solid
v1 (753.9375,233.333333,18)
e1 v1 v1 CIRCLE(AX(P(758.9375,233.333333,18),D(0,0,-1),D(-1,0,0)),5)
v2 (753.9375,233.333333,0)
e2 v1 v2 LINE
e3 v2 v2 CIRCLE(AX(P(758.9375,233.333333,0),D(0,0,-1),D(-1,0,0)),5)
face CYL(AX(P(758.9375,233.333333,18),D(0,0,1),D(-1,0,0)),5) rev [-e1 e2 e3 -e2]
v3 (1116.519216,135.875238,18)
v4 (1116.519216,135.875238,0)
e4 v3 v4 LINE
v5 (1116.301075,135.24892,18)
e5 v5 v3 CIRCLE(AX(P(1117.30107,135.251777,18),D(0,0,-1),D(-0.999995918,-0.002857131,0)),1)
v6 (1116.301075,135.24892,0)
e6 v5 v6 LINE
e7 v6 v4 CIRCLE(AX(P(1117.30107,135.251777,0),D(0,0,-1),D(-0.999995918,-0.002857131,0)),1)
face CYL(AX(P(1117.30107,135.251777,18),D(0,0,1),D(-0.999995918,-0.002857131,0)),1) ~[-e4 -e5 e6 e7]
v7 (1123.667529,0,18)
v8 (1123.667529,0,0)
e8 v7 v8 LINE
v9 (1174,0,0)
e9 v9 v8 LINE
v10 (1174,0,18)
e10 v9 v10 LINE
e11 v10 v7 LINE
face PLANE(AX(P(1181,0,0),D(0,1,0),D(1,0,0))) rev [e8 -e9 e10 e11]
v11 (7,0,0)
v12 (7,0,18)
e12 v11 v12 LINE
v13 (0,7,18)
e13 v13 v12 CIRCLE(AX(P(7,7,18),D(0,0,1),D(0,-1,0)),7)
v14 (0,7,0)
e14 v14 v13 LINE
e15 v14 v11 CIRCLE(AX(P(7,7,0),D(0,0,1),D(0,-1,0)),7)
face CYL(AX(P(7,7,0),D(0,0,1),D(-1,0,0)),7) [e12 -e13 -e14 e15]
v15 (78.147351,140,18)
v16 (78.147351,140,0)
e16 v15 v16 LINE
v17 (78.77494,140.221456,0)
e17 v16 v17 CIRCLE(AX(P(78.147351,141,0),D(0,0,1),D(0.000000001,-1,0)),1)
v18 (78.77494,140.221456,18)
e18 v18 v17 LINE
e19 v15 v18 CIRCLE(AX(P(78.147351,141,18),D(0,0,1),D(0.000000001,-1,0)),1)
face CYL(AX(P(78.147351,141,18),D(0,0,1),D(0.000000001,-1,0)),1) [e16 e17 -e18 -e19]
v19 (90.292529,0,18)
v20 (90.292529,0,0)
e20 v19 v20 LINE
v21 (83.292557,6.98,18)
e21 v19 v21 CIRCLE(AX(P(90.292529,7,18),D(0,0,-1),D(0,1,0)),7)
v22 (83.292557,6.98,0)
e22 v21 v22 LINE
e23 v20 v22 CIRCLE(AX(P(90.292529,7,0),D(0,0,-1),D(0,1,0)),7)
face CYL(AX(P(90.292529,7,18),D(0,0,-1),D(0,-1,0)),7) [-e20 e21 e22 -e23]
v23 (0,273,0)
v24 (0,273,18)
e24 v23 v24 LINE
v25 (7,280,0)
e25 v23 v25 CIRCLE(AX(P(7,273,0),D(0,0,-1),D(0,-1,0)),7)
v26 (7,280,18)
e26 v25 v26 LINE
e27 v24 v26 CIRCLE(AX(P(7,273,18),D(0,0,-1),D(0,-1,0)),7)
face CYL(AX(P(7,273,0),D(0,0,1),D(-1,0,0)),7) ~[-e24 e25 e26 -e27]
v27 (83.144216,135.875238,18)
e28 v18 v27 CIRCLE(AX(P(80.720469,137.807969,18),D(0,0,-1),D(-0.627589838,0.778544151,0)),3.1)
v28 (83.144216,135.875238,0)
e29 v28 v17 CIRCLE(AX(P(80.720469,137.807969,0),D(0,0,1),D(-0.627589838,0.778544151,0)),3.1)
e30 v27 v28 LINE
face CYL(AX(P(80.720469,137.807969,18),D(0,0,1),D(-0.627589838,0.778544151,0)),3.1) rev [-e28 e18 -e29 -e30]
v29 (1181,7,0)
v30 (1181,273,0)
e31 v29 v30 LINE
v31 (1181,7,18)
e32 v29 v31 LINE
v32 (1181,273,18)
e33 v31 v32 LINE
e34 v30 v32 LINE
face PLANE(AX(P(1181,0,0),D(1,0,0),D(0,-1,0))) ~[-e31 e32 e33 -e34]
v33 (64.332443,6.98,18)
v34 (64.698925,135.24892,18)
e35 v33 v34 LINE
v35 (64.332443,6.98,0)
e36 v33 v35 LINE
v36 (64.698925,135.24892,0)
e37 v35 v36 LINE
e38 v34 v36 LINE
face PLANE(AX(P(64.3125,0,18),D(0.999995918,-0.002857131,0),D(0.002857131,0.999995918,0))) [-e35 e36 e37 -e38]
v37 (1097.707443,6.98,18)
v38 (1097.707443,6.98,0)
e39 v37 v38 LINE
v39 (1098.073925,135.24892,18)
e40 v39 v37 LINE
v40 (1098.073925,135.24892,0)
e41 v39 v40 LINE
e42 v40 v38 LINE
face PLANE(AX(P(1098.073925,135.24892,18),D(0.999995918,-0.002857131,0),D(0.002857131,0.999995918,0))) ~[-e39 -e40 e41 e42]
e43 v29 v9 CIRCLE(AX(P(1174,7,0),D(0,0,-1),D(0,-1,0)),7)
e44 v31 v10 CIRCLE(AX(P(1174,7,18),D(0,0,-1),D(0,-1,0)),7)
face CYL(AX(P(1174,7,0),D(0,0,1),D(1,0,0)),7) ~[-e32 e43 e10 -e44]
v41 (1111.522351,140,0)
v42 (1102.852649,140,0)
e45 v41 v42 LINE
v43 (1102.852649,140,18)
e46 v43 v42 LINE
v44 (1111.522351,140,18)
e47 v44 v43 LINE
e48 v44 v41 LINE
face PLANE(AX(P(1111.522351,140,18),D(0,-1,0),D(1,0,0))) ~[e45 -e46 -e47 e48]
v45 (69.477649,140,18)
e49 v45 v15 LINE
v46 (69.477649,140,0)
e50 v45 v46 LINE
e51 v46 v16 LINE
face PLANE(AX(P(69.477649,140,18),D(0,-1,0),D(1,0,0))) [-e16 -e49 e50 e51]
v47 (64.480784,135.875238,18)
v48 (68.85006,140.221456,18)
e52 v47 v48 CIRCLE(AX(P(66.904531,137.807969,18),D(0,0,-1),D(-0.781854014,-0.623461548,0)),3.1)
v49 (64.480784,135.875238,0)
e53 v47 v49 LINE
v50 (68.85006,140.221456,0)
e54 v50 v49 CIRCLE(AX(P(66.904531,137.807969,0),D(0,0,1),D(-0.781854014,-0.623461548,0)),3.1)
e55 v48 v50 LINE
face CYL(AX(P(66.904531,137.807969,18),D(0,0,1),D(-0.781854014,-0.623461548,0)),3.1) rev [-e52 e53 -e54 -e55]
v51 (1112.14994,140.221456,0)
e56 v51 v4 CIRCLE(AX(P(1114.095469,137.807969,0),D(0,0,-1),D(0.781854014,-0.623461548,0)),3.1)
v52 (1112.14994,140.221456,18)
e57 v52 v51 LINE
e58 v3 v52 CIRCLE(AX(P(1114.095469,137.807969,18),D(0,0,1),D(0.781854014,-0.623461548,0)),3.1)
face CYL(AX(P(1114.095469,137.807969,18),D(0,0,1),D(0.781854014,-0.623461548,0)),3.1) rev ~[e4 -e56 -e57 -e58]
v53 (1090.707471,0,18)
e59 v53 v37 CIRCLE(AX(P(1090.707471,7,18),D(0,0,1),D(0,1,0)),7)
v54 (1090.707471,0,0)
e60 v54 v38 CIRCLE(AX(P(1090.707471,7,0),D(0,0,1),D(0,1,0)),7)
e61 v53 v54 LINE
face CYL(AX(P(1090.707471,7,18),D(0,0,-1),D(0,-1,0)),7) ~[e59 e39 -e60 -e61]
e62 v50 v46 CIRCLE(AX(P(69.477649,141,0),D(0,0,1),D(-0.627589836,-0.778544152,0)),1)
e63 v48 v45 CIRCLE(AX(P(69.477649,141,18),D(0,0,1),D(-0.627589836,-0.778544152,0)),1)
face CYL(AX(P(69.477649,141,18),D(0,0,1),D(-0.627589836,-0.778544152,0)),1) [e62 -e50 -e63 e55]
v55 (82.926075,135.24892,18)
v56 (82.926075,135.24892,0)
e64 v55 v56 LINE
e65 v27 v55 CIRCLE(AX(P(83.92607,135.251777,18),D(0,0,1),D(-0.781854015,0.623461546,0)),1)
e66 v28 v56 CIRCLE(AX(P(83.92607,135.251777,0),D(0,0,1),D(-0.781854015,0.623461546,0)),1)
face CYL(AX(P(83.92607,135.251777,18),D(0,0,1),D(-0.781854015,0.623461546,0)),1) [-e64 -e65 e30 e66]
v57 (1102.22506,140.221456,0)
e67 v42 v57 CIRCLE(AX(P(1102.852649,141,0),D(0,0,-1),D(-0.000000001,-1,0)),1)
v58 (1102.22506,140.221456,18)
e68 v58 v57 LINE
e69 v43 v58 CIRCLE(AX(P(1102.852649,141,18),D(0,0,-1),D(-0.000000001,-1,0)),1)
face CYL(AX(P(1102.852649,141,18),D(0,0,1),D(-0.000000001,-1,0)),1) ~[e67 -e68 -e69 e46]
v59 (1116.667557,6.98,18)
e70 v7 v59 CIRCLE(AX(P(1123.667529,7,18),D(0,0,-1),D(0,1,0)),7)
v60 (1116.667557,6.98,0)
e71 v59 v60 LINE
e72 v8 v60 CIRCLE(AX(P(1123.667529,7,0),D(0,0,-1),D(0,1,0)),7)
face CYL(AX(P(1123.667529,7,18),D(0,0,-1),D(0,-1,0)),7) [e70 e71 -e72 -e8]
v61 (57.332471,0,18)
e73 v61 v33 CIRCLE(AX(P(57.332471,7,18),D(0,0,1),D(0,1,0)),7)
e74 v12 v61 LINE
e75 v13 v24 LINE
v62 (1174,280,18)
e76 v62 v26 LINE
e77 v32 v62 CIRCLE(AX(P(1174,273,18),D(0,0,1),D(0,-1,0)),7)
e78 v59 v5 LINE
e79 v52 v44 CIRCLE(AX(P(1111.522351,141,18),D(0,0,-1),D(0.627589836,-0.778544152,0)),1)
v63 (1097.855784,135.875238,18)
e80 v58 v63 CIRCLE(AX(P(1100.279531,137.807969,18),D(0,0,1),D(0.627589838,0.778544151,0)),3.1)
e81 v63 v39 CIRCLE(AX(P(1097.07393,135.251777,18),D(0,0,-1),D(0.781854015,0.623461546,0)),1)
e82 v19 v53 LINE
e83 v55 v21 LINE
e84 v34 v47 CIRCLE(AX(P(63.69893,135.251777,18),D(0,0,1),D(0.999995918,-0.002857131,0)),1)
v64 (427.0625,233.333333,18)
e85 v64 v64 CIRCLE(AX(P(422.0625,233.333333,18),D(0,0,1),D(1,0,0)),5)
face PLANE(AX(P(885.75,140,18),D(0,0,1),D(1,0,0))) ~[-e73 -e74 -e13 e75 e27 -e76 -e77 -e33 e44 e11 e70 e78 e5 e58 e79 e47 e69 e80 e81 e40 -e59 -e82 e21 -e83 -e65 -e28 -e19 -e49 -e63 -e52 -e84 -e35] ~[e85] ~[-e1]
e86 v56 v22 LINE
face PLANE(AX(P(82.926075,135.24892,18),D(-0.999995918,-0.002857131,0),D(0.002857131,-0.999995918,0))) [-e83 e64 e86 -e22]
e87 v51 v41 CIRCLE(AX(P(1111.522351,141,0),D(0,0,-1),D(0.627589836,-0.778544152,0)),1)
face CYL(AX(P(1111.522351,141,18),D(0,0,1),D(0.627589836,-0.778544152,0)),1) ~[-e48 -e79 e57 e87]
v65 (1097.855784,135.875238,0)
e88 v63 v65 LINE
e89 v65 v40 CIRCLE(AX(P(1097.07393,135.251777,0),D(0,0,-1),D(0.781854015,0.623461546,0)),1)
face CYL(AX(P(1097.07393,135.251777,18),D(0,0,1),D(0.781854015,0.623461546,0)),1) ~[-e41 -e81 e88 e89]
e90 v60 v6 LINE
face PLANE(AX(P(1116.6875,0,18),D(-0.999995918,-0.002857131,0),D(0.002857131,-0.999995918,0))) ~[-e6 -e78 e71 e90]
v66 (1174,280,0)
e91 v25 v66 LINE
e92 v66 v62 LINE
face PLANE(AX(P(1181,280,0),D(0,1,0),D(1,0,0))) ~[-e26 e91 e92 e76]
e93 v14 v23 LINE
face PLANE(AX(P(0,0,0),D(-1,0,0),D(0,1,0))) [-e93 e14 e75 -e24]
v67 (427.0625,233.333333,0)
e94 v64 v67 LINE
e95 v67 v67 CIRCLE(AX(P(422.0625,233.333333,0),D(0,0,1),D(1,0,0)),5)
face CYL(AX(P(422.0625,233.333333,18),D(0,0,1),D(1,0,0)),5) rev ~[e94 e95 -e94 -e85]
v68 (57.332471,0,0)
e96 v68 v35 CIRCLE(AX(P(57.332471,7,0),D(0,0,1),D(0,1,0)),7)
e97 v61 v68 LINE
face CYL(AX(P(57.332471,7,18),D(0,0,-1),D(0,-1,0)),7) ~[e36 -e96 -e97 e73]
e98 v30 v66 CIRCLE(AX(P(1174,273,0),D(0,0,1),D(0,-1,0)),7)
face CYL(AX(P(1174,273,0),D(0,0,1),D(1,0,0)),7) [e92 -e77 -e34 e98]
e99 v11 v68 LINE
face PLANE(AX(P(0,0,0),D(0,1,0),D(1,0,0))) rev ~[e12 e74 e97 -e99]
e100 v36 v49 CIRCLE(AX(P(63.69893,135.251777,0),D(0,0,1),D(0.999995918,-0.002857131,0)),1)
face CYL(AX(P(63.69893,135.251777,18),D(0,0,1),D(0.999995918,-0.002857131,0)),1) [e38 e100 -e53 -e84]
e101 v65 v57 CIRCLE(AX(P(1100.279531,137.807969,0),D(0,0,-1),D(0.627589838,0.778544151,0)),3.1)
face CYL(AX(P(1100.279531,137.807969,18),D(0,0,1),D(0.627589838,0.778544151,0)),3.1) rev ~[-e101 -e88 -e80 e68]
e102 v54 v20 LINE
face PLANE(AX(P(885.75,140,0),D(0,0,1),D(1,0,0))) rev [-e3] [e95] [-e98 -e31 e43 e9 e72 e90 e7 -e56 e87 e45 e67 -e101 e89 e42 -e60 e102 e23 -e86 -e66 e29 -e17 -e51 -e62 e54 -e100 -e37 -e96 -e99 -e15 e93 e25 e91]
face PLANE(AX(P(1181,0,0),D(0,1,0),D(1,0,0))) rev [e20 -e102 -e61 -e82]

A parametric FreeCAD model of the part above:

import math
import FreeCAD as App
import Part
import Sketcher
from FreeCAD import Vector


def edges_at(feature, points):
    """Names of the edges that pass closest to the given points."""
    edges = feature.Shape.Edges
    near = lambda p: min(range(len(edges)), key=lambda i: edges[i].distToShape(Part.Vertex(*p))[0])
    return sorted({f"Edge{near(p) + 1}" for p in points})

doc = App.newDocument("Part")
body = doc.addObject("PartDesign::Body", "Body")

# Sketch on XY plane
sketch1 = body.newObject("Sketcher::SketchObject", "Sketch")
sketch1.AttachmentSupport = (doc.getObject("XY_Plane"), [""])
sketch1.MapMode = "FlatFace"
sketch1.addGeometry(Part.LineSegment(Vector(0, 280, 0), Vector(0, 0, 0)), False)
sketch1.addGeometry(Part.LineSegment(Vector(0, 0, 0), Vector(590, 0, 0)), False)
sketch1.addGeometry(Part.LineSegment(Vector(590, 0, 0), Vector(590, 280, 0)), False)
sketch1.addGeometry(Part.LineSegment(Vector(590, 280, 0), Vector(0, 280, 0)), False)
sketch1.addConstraint(Sketcher.Constraint("Coincident", 0, 2, 1, 1))
sketch1.addConstraint(Sketcher.Constraint("Coincident", 1, 2, 2, 1))
sketch1.addConstraint(Sketcher.Constraint("Coincident", 2, 2, 3, 1))
sketch1.addConstraint(Sketcher.Constraint("Coincident", 3, 2, 0, 1))
sketch1.addConstraint(Sketcher.Constraint("Vertical", 0))
sketch1.addConstraint(Sketcher.Constraint("Horizontal", 1))
sketch1.addConstraint(Sketcher.Constraint("Vertical", 2))
sketch1.addConstraint(Sketcher.Constraint("Horizontal", 3))
sketch1.addConstraint(Sketcher.Constraint("Coincident", 0, 2, -1, 1))
sketch1.addConstraint(Sketcher.Constraint("DistanceY", 0, 2, 0, 1, 280.0))
sketch1.addConstraint(Sketcher.Constraint("DistanceX", 1, 1, 1, 2, 590.5))
pad1 = body.newObject("PartDesign::Pad", "Pad")
pad1.Profile = sketch1
pad1.Length = 18

# Sketch on XY plane
sketch2 = body.newObject("Sketcher::SketchObject", "Sketch001")
sketch2.AttachmentSupport = (doc.getObject("XY_Plane"), [""])
sketch2.MapMode = "FlatFace"
sketch2.AttachmentOffset = App.Placement(Vector(0, 0, 18), App.Rotation())
sketch2.addGeometry(Part.LineSegment(Vector(78.1, 140, 0), Vector(69.5, 140, 0)), False)
sketch2.addGeometry(Part.ArcOfCircle(Part.Circle(Vector(69.5, 141, 0), Vector(0, 0, 1), 1), math.radians(-129), math.radians(-90)), False)
sketch2.addGeometry(Part.ArcOfCircle(Part.Circle(Vector(66.9, 137.8, 0), Vector(0, 0, 1), 3.1), math.radians(51), math.radians(219)), False)
sketch2.addGeometry(Part.ArcOfCircle(Part.Circle(Vector(63.7, 135.3, 0), Vector(0, 0, 1), 1), math.radians(0), math.radians(39)), False)
sketch2.addGeometry(Part.LineSegment(Vector(64.7, 135.2, 0), Vector(64.3, 0, 0)), False)
sketch2.addGeometry(Part.LineSegment(Vector(64.3, 0, 0), Vector(83.3, 0, 0)), False)
sketch2.addGeometry(Part.LineSegment(Vector(83.3, 0, 0), Vector(82.9, 135.2, 0)), False)
sketch2.addGeometry(Part.ArcOfCircle(Part.Circle(Vector(83.9, 135.3, 0), Vector(0, 0, 1), 1), math.radians(141), math.radians(180)), False)
sketch2.addGeometry(Part.ArcOfCircle(Part.Circle(Vector(80.7, 137.8, 0), Vector(0, 0, 1), 3.1), math.radians(-39), math.radians(129)), False)
sketch2.addGeometry(Part.ArcOfCircle(Part.Circle(Vector(78.1, 141, 0), Vector(0, 0, 1), 1), math.radians(-90), math.radians(-51)), False)
sketch2.addConstraint(Sketcher.Constraint("Tangent", 0, 2, 1, 2))
sketch2.addConstraint(Sketcher.Constraint("Tangent", 1, 1, 2, 1))
sketch2.addConstraint(Sketcher.Constraint("Tangent", 2, 2, 3, 2))
sketch2.addConstraint(Sketcher.Constraint("Tangent", 3, 1, 4, 1))
sketch2.addConstraint(Sketcher.Constraint("Coincident", 4, 2, 5, 1))
sketch2.addConstraint(Sketcher.Constraint("Coincident", 5, 2, 6, 1))
sketch2.addConstraint(Sketcher.Constraint("Tangent", 6, 2, 7, 2))
sketch2.addConstraint(Sketcher.Constraint("Tangent", 7, 1, 8, 1))
sketch2.addConstraint(Sketcher.Constraint("Tangent", 8, 2, 9, 2))
sketch2.addConstraint(Sketcher.Constraint("Tangent", 9, 1, 0, 1))
sketch2.addConstraint(Sketcher.Constraint("Horizontal", 0))
sketch2.addConstraint(Sketcher.Constraint("Horizontal", 5))
sketch2.addConstraint(Sketcher.Constraint("Equal", 1, 3))
sketch2.addConstraint(Sketcher.Constraint("Equal", 3, 7))
sketch2.addConstraint(Sketcher.Constraint("Equal", 2, 8))
sketch2.addConstraint(Sketcher.Constraint("Equal", 7, 9))
sketch2.addConstraint(Sketcher.Constraint("PointOnObject", 4, 2, -1))
sketch2.addConstraint(Sketcher.Constraint("Horizontal", 3, 3, 7, 3))
sketch2.addConstraint(Sketcher.Constraint("Horizontal", 2, 3, 8, 3))
sketch2.addConstraint(Sketcher.Constraint("Horizontal", 3, 1, 6, 2))
sketch2.addConstraint(Sketcher.Constraint("Radius", 1, 1.0))
sketch2.addConstraint(Sketcher.Constraint("Radius", 2, 3.1))
sketch2.addConstraint(Sketcher.Constraint("DistanceX", 5, 1, 5, 2, 19.0))
sketch2.addConstraint(Sketcher.Constraint("DistanceY", -1, 1, 1, 3, 141.0))
sketch2.addConstraint(Sketcher.Constraint("DistanceX", 0, 2, 0, 1, 8.669701))
sketch2.addConstraint(Sketcher.Constraint("DistanceX", -1, 1, 4, 2, 64.3125))
sketch2.addConstraint(Sketcher.Constraint("DistanceX", 3, 3, 2, 3, 3.205601))
sketch2.addConstraint(Sketcher.Constraint("Distance", 4, 135.249472))
pocket1 = body.newObject("PartDesign::Pocket", "Pocket")
pocket1.Profile = sketch2
pocket1.Type = "ThroughAll"

# Sketch on XY plane
sketch3 = body.newObject("Sketcher::SketchObject", "Sketch002")
sketch3.AttachmentSupport = (doc.getObject("XY_Plane"), [""])
sketch3.MapMode = "FlatFace"
sketch3.AttachmentOffset = App.Placement(Vector(0, 0, 18), App.Rotation())
sketch3.addGeometry(Part.Circle(Vector(422, 233, 0), Vector(0, 0, 1), 5), False)
sketch3.addConstraint(Sketcher.Constraint("Diameter", 0, 10.0))
sketch3.addConstraint(Sketcher.Constraint("DistanceX", -1, 1, 0, 3, 422.0625))
sketch3.addConstraint(Sketcher.Constraint("DistanceY", -1, 1, 0, 3, 233.333333))
pocket2 = body.newObject("PartDesign::Pocket", "Pocket001")
pocket2.Profile = sketch3
pocket2.Type = "ThroughAll"
doc.recompute()

fillet = body.newObject("PartDesign::Fillet", "Fillet")
fillet.Base = (pocket2, edges_at(pocket2, [
    (83.312, 0, 9),
    (64.312, 0, 9),
    (0, 280, 9),
    (0, 0, 9),
]))
fillet.Radius = 7
body2 = doc.addObject("PartDesign::Body", "Body001")
doc.recompute()

body2.BaseFeature = body
doc.recompute()

mirroring = doc.addObject("Part::Mirroring", "Mirroring")
mirroring.Source = body
mirroring.Base = Vector(590.5, 0, 18)
mirroring.Normal = Vector(-1, 0, 0)
body3 = doc.addObject("PartDesign::Body", "Body002")
body3.BaseFeature = mirroring
boolean = body2.newObject("PartDesign::Boolean", "Boolean")
boolean.Type = "Fuse"
boolean.addObjects([body3])
doc.recompute()
mirroring.Visibility = False

doc.recompute()
